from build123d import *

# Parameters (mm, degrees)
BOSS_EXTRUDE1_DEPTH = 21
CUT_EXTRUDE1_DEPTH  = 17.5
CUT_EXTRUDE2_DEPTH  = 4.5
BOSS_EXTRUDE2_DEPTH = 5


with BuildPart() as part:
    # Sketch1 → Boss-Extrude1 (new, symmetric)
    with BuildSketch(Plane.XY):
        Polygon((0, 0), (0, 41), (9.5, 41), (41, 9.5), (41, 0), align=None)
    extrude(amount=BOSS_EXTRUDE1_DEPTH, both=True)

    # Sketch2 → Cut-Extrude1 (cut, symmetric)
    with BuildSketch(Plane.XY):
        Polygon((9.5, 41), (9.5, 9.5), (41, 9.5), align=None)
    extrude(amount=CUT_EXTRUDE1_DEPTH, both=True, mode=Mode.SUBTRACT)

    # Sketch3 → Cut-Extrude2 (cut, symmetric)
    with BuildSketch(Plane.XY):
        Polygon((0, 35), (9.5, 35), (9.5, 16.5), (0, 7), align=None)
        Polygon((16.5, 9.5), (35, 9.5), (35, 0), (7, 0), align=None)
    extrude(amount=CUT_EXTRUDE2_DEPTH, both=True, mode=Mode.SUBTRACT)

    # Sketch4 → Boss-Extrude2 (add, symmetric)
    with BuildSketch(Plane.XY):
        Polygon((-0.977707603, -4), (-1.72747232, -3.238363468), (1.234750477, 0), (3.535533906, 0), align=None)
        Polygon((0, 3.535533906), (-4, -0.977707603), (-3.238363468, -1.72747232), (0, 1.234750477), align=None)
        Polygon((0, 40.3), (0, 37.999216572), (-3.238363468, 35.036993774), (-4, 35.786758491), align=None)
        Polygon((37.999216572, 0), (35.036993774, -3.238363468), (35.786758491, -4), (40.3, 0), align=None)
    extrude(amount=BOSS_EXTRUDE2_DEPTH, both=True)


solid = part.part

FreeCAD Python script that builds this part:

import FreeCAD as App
import Part
import Sketcher
from FreeCAD import Vector


def add_polygon(sketch, points):
    """Adds a closed chain of lines whose ends are joined by coincident constraints."""
    first, n = sketch.GeometryCount, len(points)
    for a, b in zip(points, points[1:] + points[:1]):
        sketch.addGeometry(Part.LineSegment(App.Vector(*a, 0), App.Vector(*b, 0)), False)
    for i in range(n):
        sketch.addConstraint(Sketcher.Constraint("Coincident", first + i, 2, first + (i + 1) % n, 1))

doc = App.newDocument("Part")
body = doc.addObject("PartDesign::Body", "Body")

sketch1 = body.newObject("Sketcher::SketchObject", "Sketch")
sketch1.AttachmentSupport = (doc.getObject("XY_Plane"), [""])
sketch1.MapMode = "FlatFace"
add_polygon(sketch1, [(0, 41), (0, 0), (41, 0), (41, 9.5), (9.5, 41)])
sketch1.addConstraint([
    Sketcher.Constraint("Vertical", 0),
    Sketcher.Constraint("Horizontal", 1),
    Sketcher.Constraint("Vertical", 2),
    Sketcher.Constraint("Horizontal", 4),
    Sketcher.Constraint("Coincident", 0, 2, -1, 1),
    Sketcher.Constraint("Equal", 1, 0),
    Sketcher.Constraint("Equal", 4, 2),
    Sketcher.Constraint("DistanceX", 1, 1, 1, 2, 41.0),
    Sketcher.Constraint("DistanceX", 4, 2, 4, 1, 9.5),
])
pad1 = body.newObject("PartDesign::Pad", "Pad")
pad1.Profile = sketch1
pad1.Length = 42
pad1.Midplane = True

sketch2 = body.newObject("Sketcher::SketchObject", "Sketch001")
sketch2.AttachmentSupport = (doc.getObject("XY_Plane"), [""])
sketch2.MapMode = "FlatFace"
add_polygon(sketch2, [(9.5, 41), (9.5, 9.5), (41, 9.5)])
sketch2.addConstraint([
    Sketcher.Constraint("Vertical", 0),
    Sketcher.Constraint("Horizontal", 1),
    Sketcher.Constraint("Equal", 1, 0),
    Sketcher.Constraint("DistanceX", 1, 1, 1, 2, 31.5),
    Sketcher.Constraint("DistanceX", -1, 1, 1, 2, 41.0),
    Sketcher.Constraint("DistanceY", -1, 1, 2, 2, 41.0),
])
pocket1 = body.newObject("PartDesign::Pocket", "Pocket")
pocket1.Profile = sketch2
pocket1.Length = 35
pocket1.Midplane = True

sketch3 = body.newObject("Sketcher::SketchObject", "Sketch002")
sketch3.AttachmentSupport = (doc.getObject("XY_Plane"), [""])
sketch3.MapMode = "FlatFace"
add_polygon(sketch3, [(9.5, 35), (0, 35), (0, 7), (9.5, 16.5)])
add_polygon(sketch3, [(35, 9.5), (16.5, 9.5), (7, 0), (35, 0)])
sketch3.addConstraint([
    Sketcher.Constraint("Horizontal", 0),
    Sketcher.Constraint("Vertical", 1),
    Sketcher.Constraint("Vertical", 3),
    Sketcher.Constraint("Horizontal", 4),
    Sketcher.Constraint("Horizontal", 6),
    Sketcher.Constraint("Vertical", 7),
    Sketcher.Constraint("PointOnObject", 0, 2, -2),
    Sketcher.Constraint("PointOnObject", 5, 2, -1),
    Sketcher.Constraint("Parallel", 2, 5),
    Sketcher.Constraint("Equal", 6, 1),
    Sketcher.Constraint("Equal", 4, 3),
    Sketcher.Constraint("Equal", 0, 7),
    Sketcher.Constraint("DistanceX", 6, 1, 6, 2, 28.0),
    Sketcher.Constraint("DistanceX", 0, 2, 0, 1, 9.5),
    Sketcher.Constraint("DistanceY", -1, 1, 0, 2, 35.0),
    Sketcher.Constraint("DistanceX", -1, 1, 5, 2, 7.0),
])
pocket2 = body.newObject("PartDesign::Pocket", "Pocket001")
pocket2.Profile = sketch3
pocket2.Length = 9
pocket2.Midplane = True

sketch4 = body.newObject("Sketcher::SketchObject", "Sketch003")
sketch4.AttachmentSupport = (doc.getObject("XY_Plane"), [""])
sketch4.MapMode = "FlatFace"
add_polygon(sketch4, [(-1.727472, -3.238363), (-0.977708, -4), (3.535534, 0), (1.23475, 0)])
add_polygon(sketch4, [(0, 3.535534), (-4, -0.977708), (-3.238363, -1.727472), (0, 1.23475)])
add_polygon(sketch4, [(0, 37.999217), (0, 40.3), (-4, 35.786758), (-3.238363, 35.036994)])
add_polygon(sketch4, [(37.999217, 0), (35.036994, -3.238363), (35.786758, -4), (40.3, 0)])
sketch4.addConstraint([
    Sketcher.Constraint("Horizontal", 2),
    Sketcher.Constraint("Vertical", 7),
    Sketcher.Constraint("Vertical", 8),
    Sketcher.Constraint("Horizontal", 15),
    Sketcher.Constraint("PointOnObject", 1, 2, -1),
    Sketcher.Constraint("PointOnObject", 6, 2, -2),
    Sketcher.Constraint("PointOnObject", 8, 2, -2),
    Sketcher.Constraint("PointOnObject", 14, 2, -1),
    Sketcher.Constraint("Parallel", 4, 9),
    Sketcher.Constraint("Parallel", 5, 10),
    Sketcher.Constraint("Parallel", 6, 11),
    Sketcher.Constraint("Parallel", 3, 12),
    Sketcher.Constraint("Parallel", 0, 13),
    Sketcher.Constraint("Parallel", 1, 14),
    Sketcher.Constraint("Horizontal", 3, 2, 12, 2),
    Sketcher.Constraint("Horizontal", 0, 2, 13, 2),
    Sketcher.Constraint("Vertical", 4, 2, 9, 2),
    Sketcher.Constraint("Vertical", 5, 2, 10, 2),
    Sketcher.Constraint("Equal", 15, 7),
    Sketcher.Constraint("Equal", 1, 4),
    Sketcher.Constraint("Equal", 0, 5),
    Sketcher.Constraint("Equal", 3, 6),
    Sketcher.Constraint("DistanceY", 0, 2, -1, 1, 4.0),
    Sketcher.Constraint("DistanceX", 4, 2, -1, 1, 4.0),
    Sketcher.Constraint("DistanceY", -1, 1, 8, 2, 40.3),
    Sketcher.Constraint("DistanceX", -1, 1, 14, 2, 40.3),
    Sketcher.Constraint("Distance", 1, 6.030701),
    Sketcher.Constraint("DistanceX", 0, 2, 12, 2, 36.014701),
    Sketcher.Constraint("DistanceX", 2, 2, 2, 1, 2.300783),
    Sketcher.Constraint("DistanceX", -1, 1, 2, 2, 1.23475),
    Sketcher.Constraint("DistanceY", -1, 1, 6, 2, 1.23475),
    Sketcher.Constraint("DistanceX", 5, 2, 3, 2, 1.510891),
])
pad2 = body.newObject("PartDesign::Pad", "Pad001")
pad2.Profile = sketch4
pad2.Length = 10
pad2.Midplane = True

doc.recompute()
